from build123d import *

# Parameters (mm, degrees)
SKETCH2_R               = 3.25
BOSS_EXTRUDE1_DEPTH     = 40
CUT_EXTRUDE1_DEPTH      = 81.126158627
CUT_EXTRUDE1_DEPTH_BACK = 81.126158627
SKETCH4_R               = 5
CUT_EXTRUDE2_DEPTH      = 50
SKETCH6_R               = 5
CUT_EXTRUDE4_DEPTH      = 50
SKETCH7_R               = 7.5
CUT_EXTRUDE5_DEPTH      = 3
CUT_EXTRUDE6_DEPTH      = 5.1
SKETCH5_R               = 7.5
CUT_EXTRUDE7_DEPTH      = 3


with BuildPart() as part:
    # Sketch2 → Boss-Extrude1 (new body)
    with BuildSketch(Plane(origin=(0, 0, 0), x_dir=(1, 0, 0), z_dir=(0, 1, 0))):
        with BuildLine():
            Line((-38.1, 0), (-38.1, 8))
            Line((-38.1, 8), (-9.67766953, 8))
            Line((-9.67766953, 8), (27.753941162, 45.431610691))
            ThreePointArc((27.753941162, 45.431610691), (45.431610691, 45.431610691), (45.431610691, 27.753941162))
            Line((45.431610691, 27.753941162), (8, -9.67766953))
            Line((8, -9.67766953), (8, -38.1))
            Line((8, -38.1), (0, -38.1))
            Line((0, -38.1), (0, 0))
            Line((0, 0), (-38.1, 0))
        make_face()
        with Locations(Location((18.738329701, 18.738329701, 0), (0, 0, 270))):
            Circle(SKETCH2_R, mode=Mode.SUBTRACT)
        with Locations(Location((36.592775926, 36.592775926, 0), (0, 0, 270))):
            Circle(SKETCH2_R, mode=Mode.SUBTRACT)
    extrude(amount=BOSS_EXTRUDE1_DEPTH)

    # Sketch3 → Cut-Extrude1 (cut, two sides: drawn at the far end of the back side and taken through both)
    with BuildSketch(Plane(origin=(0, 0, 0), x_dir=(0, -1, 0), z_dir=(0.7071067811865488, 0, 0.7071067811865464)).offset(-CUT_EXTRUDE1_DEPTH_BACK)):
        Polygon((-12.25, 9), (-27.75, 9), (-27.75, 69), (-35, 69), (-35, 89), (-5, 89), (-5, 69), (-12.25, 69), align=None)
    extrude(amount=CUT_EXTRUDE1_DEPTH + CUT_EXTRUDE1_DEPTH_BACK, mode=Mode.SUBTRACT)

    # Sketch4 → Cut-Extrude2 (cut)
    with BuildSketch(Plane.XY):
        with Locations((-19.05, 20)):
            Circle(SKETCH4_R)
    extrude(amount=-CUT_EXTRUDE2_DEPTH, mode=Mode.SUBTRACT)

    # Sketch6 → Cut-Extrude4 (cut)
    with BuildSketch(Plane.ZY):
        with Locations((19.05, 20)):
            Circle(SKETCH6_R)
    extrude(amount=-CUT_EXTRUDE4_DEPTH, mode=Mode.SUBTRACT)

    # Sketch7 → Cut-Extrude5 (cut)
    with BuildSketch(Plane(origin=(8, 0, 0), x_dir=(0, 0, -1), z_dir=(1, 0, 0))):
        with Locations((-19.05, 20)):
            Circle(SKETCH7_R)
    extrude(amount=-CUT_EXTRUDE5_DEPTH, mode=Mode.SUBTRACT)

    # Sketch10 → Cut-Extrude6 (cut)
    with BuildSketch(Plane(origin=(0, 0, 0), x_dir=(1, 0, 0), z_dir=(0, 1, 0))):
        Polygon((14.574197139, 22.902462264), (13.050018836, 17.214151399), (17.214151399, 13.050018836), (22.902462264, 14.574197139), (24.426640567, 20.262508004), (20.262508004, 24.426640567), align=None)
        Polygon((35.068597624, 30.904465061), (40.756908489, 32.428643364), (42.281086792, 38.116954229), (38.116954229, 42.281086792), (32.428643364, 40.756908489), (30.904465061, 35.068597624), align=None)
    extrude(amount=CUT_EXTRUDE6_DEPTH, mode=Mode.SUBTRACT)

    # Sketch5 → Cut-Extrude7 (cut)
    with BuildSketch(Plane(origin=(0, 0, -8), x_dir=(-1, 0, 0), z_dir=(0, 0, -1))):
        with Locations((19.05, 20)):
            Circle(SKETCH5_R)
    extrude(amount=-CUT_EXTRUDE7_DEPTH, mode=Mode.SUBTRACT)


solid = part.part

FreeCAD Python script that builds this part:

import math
import FreeCAD as App
import Part
import Sketcher
Q = App.Units.Quantity


def add_polygon(sketch, points):
    """Adds a closed chain of lines whose ends are joined by coincident constraints."""
    first, n = sketch.GeometryCount, len(points)
    for a, b in zip(points, points[1:] + points[:1]):
        sketch.addGeometry(Part.LineSegment(App.Vector(*a, 0), App.Vector(*b, 0)), False)
    for i in range(n):
        sketch.addConstraint(Sketcher.Constraint("Coincident", first + i, 2, first + (i + 1) % n, 1))

doc = App.newDocument("Part")
body = doc.addObject("PartDesign::Body", "Body")

sketch1 = body.newObject("Sketcher::SketchObject", "Sketch")
sketch1.AttachmentSupport = (doc.getObject("XZ_Plane"), [""])
sketch1.MapMode = "FlatFace"
sketch1.addGeometry(Part.LineSegment(App.Vector(-38.1, -8, 0), App.Vector(-38.1, 0, 0)), False)
sketch1.addGeometry(Part.LineSegment(App.Vector(-38.1, 0, 0), App.Vector(0, 0, 0)), False)
sketch1.addGeometry(Part.LineSegment(App.Vector(0, 0, 0), App.Vector(0, 38.1, 0)), False)
sketch1.addGeometry(Part.LineSegment(App.Vector(0, 38.1, 0), App.Vector(8, 38.1, 0)), False)
sketch1.addGeometry(Part.LineSegment(App.Vector(8, 38.1, 0), App.Vector(8, 9.7, 0)), False)
sketch1.addGeometry(Part.LineSegment(App.Vector(8, 9.7, 0), App.Vector(45.4, -27.8, 0)), False)
sketch1.addGeometry(Part.ArcOfCircle(Part.Circle(App.Vector(36.6, -36.6, 0), App.Vector(0, 0, 1), 12.5), math.radians(-135), math.radians(45)), False)
sketch1.addGeometry(Part.LineSegment(App.Vector(27.8, -45.4, 0), App.Vector(-9.7, -8, 0)), False)
sketch1.addGeometry(Part.LineSegment(App.Vector(-9.7, -8, 0), App.Vector(-38.1, -8, 0)), False)
sketch1.addGeometry(Part.Circle(App.Vector(18.7, -18.7, 0), App.Vector(0, 0, 1), 3.2), False)
sketch1.addGeometry(Part.Circle(App.Vector(36.6, -36.6, 0), App.Vector(0, 0, 1), 3.2), False)
sketch1.addConstraint(Sketcher.Constraint("Coincident", 0, 2, 1, 1))
sketch1.addConstraint(Sketcher.Constraint("Coincident", 1, 2, 2, 1))
sketch1.addConstraint(Sketcher.Constraint("Coincident", 2, 2, 3, 1))
sketch1.addConstraint(Sketcher.Constraint("Coincident", 3, 2, 4, 1))
sketch1.addConstraint(Sketcher.Constraint("Coincident", 4, 2, 5, 1))
sketch1.addConstraint(Sketcher.Constraint("Tangent", 5, 2, 6, 2))
sketch1.addConstraint(Sketcher.Constraint("Tangent", 6, 1, 7, 1))
sketch1.addConstraint(Sketcher.Constraint("Coincident", 7, 2, 8, 1))
sketch1.addConstraint(Sketcher.Constraint("Coincident", 8, 2, 0, 1))
sketch1.addConstraint(Sketcher.Constraint("Vertical", 0))
sketch1.addConstraint(Sketcher.Constraint("Horizontal", 1))
sketch1.addConstraint(Sketcher.Constraint("Vertical", 2))
sketch1.addConstraint(Sketcher.Constraint("Horizontal", 3))
sketch1.addConstraint(Sketcher.Constraint("Vertical", 4))
sketch1.addConstraint(Sketcher.Constraint("Horizontal", 8))
sketch1.addConstraint(Sketcher.Constraint("Coincident", 1, 2, -1, 1))
sketch1.addConstraint(Sketcher.Constraint("Coincident", 10, 3, 6, 3))
sketch1.addConstraint(Sketcher.Constraint("Equal", 9, 10))
sketch1.addConstraint(Sketcher.Constraint("Parallel", 5, 7))
sketch1.addConstraint(Sketcher.Constraint("Equal", 3, 0))
sketch1.addConstraint(Sketcher.Constraint("Equal", 1, 2))
sketch1.addConstraint(Sketcher.Constraint("Equal", 8, 4))
sketch1.addConstraint(Sketcher.Constraint("Equal", 5, 7))
sketch1.addConstraint(Sketcher.Constraint("Diameter", 9, Q("6.5 mm")))
sketch1.addConstraint(Sketcher.Constraint("Radius", 6, Q("12.5 mm")))
sketch1.addConstraint(Sketcher.Constraint("DistanceX", 3, 1, 3, 2, Q("8 mm")))
sketch1.addConstraint(Sketcher.Constraint("DistanceX", 1, 1, 1, 2, Q("38.1 mm")))
sketch1.addConstraint(Sketcher.Constraint("DistanceY", 9, 3, 4, 2, Q("28.415999 mm")))
sketch1.addConstraint(Sketcher.Constraint("DistanceX", 7, 2, 9, 3, Q("28.415999 mm")))
sketch1.addConstraint(Sketcher.Constraint("Distance", 5, Q("52.936292 mm")))
pad1 = body.newObject("PartDesign::Pad", "Pad")
pad1.Profile = sketch1
pad1.Length = 40
pad1.Reversed = True

sketch2 = body.newObject("Sketcher::SketchObject", "Sketch001")
sketch2.Placement = App.Placement(App.Vector(0, 0, 0), App.Rotation(App.Vector(0, -1, 0), App.Vector(0.707106781, 0, -0.707106781), App.Vector(0.707106781, 0, 0.707106781), "ZXY"))
add_polygon(sketch2, [(-28, 9), (-12, 9), (-12, 69), (-5, 69), (-5, 89), (-35, 89), (-35, 69), (-28, 69)])
sketch2.addConstraint(Sketcher.Constraint("Horizontal", 0))
sketch2.addConstraint(Sketcher.Constraint("Vertical", 1))
sketch2.addConstraint(Sketcher.Constraint("Horizontal", 2))
sketch2.addConstraint(Sketcher.Constraint("Vertical", 3))
sketch2.addConstraint(Sketcher.Constraint("Horizontal", 4))
sketch2.addConstraint(Sketcher.Constraint("Vertical", 5))
sketch2.addConstraint(Sketcher.Constraint("Horizontal", 6))
sketch2.addConstraint(Sketcher.Constraint("Vertical", 7))
sketch2.addConstraint(Sketcher.Constraint("Horizontal", 2, 2, 5, 2))
sketch2.addConstraint(Sketcher.Constraint("Equal", 2, 6))
sketch2.addConstraint(Sketcher.Constraint("DistanceX", 4, 2, 4, 1, Q("30 mm")))
sketch2.addConstraint(Sketcher.Constraint("DistanceY", 1, 1, 1, 2, Q("60 mm")))
sketch2.addConstraint(Sketcher.Constraint("DistanceY", 3, 1, 3, 2, Q("20 mm")))
sketch2.addConstraint(Sketcher.Constraint("DistanceX", 0, 1, 0, 2, Q("15.5 mm")))
sketch2.addConstraint(Sketcher.Constraint("DistanceY", -1, 1, 0, 2, Q("9 mm")))
sketch2.addConstraint(Sketcher.Constraint("DistanceX", 2, 2, -1, 1, Q("5 mm")))
pocket1 = body.newObject("PartDesign::Pocket", "Pocket")
pocket1.Profile = sketch2
pocket1.Type = "ThroughAll"
pocket1.Midplane = True

sketch3 = body.newObject("Sketcher::SketchObject", "Sketch002")
sketch3.AttachmentSupport = (doc.getObject("XY_Plane"), [""])
sketch3.MapMode = "FlatFace"
sketch3.addGeometry(Part.Circle(App.Vector(-19, 20, 0), App.Vector(0, 0, 1), 5), False)
sketch3.addConstraint(Sketcher.Constraint("Diameter", 0, Q("10 mm")))
sketch3.addConstraint(Sketcher.Constraint("DistanceY", -1, 1, 0, 3, Q("20 mm")))
sketch3.addConstraint(Sketcher.Constraint("DistanceX", 0, 3, -1, 1, Q("19.05 mm")))
pocket2 = body.newObject("PartDesign::Pocket", "Pocket001")
pocket2.Profile = sketch3
pocket2.Length = 50

sketch4 = body.newObject("Sketcher::SketchObject", "Sketch003")
sketch4.AttachmentSupport = (doc.getObject("YZ_Plane"), [""])
sketch4.MapMode = "FlatFace"
sketch4.addGeometry(Part.Circle(App.Vector(20, 19, 0), App.Vector(0, 0, 1), 5), False)
sketch4.addConstraint(Sketcher.Constraint("Diameter", 0, Q("10 mm")))
sketch4.addConstraint(Sketcher.Constraint("DistanceX", -1, 1, 0, 3, Q("20 mm")))
sketch4.addConstraint(Sketcher.Constraint("DistanceY", -1, 1, 0, 3, Q("19.05 mm")))
pocket3 = body.newObject("PartDesign::Pocket", "Pocket002")
pocket3.Profile = sketch4
pocket3.Length = 50
pocket3.Reversed = True

sketch5 = body.newObject("Sketcher::SketchObject", "Sketch004")
sketch5.AttachmentSupport = (doc.getObject("YZ_Plane"), [""])
sketch5.MapMode = "FlatFace"
sketch5.AttachmentOffset = App.Placement(App.Vector(0, 0, 8), App.Rotation())
sketch5.addGeometry(Part.Circle(App.Vector(20, 19, 0), App.Vector(0, 0, 1), 8), False)
sketch5.addConstraint(Sketcher.Constraint("Diameter", 0, Q("15 mm")))
sketch5.addConstraint(Sketcher.Constraint("DistanceX", -1, 1, 0, 3, Q("20 mm")))
sketch5.addConstraint(Sketcher.Constraint("DistanceY", -1, 1, 0, 3, Q("19.05 mm")))
pocket4 = body.newObject("PartDesign::Pocket", "Pocket003")
pocket4.Profile = sketch5
pocket4.Length = 3

sketch6 = body.newObject("Sketcher::SketchObject", "Sketch005")
sketch6.AttachmentSupport = (doc.getObject("XZ_Plane"), [""])
sketch6.MapMode = "FlatFace"
add_polygon(sketch6, [(15, -23), (13, -17), (17, -13), (23, -15), (24, -20), (20, -24)])
add_polygon(sketch6, [(35, -31), (41, -32), (42, -38), (38, -42), (32, -41), (31, -35)])
sketch6.addConstraint(Sketcher.Constraint("Parallel", 0, 3))
sketch6.addConstraint(Sketcher.Constraint("Parallel", 1, 4))
sketch6.addConstraint(Sketcher.Constraint("Parallel", 2, 5))
sketch6.addConstraint(Sketcher.Constraint("Parallel", 5, 6))
sketch6.addConstraint(Sketcher.Constraint("Parallel", 3, 7))
sketch6.addConstraint(Sketcher.Constraint("Parallel", 4, 8))
sketch6.addConstraint(Sketcher.Constraint("Parallel", 6, 9))
sketch6.addConstraint(Sketcher.Constraint("Parallel", 7, 10))
sketch6.addConstraint(Sketcher.Constraint("Parallel", 8, 11))
sketch6.addConstraint(Sketcher.Constraint("Equal", 0, 1))
sketch6.addConstraint(Sketcher.Constraint("Equal", 1, 2))
sketch6.addConstraint(Sketcher.Constraint("Equal", 2, 3))
sketch6.addConstraint(Sketcher.Constraint("Equal", 5, 6))
sketch6.addConstraint(Sketcher.Constraint("Equal", 6, 7))
sketch6.addConstraint(Sketcher.Constraint("Equal", 7, 8))
sketch6.addConstraint(Sketcher.Constraint("Equal", 8, 9))
sketch6.addConstraint(Sketcher.Constraint("Angle", 0, Q("105 deg")))
sketch6.addConstraint(Sketcher.Constraint("Angle", 1, Q("45 deg")))
sketch6.addConstraint(Sketcher.Constraint("Angle", 2, Q("-15 deg")))
sketch6.addConstraint(Sketcher.Constraint("DistanceX", 4, 2, 6, 2, Q("20.4944 mm")))
sketch6.addConstraint(Sketcher.Constraint("DistanceY", 9, 2, 3, 2, Q("20.4944 mm")))
sketch6.addConstraint(Sketcher.Constraint("DistanceX", -1, 1, 0, 2, Q("13.050019 mm")))
sketch6.addConstraint(Sketcher.Constraint("DistanceY", 0, 2, -1, 1, Q("17.214151 mm")))
sketch6.addConstraint(Sketcher.Constraint("DistanceX", -1, 1, 1, 2, Q("17.214151 mm")))
pocket5 = body.newObject("PartDesign::Pocket", "Pocket004")
pocket5.Profile = sketch6
pocket5.Length = 5.1

sketch7 = body.newObject("Sketcher::SketchObject", "Sketch006")
sketch7.AttachmentSupport = (doc.getObject("XY_Plane"), [""])
sketch7.MapMode = "FlatFace"
sketch7.AttachmentOffset = App.Placement(App.Vector(0, 0, -8), App.Rotation())
sketch7.addGeometry(Part.Circle(App.Vector(-19, 20, 0), App.Vector(0, 0, 1), 8), False)
sketch7.addConstraint(Sketcher.Constraint("Diameter", 0, Q("15 mm")))
sketch7.addConstraint(Sketcher.Constraint("DistanceY", -1, 1, 0, 3, Q("20 mm")))
sketch7.addConstraint(Sketcher.Constraint("DistanceX", 0, 3, -1, 1, Q("19.05 mm")))
pocket6 = body.newObject("PartDesign::Pocket", "Pocket005")
pocket6.Profile = sketch7
pocket6.Length = 3
pocket6.Reversed = True

doc.recompute()
